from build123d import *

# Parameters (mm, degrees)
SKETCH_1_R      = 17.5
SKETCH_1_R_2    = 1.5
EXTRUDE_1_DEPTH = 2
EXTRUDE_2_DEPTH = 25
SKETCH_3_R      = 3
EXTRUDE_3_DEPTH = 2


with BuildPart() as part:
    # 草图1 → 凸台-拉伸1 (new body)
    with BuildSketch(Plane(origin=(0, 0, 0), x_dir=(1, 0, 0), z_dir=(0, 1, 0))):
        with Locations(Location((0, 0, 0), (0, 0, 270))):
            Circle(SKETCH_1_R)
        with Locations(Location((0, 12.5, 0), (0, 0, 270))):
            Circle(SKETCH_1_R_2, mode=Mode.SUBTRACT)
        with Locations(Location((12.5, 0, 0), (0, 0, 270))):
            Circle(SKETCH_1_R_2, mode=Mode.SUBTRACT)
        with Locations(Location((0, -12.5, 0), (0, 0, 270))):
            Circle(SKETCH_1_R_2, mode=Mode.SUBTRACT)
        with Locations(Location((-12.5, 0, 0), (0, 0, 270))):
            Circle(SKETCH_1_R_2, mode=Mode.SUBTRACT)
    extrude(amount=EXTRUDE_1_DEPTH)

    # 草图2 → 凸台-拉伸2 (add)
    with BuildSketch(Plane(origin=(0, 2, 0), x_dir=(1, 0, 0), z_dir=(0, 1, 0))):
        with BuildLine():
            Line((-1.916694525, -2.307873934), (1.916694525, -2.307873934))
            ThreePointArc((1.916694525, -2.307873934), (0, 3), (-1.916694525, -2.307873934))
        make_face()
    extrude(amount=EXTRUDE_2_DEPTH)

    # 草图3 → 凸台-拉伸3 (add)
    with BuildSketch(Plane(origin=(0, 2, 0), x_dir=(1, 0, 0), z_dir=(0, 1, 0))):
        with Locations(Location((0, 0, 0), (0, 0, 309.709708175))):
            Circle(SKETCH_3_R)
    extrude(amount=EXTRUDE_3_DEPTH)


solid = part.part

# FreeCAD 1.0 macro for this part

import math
import FreeCAD as App
import Part
import Sketcher

doc = App.newDocument("Part")
body = doc.addObject("PartDesign::Body", "Body")

sketch1 = doc.addObject("Sketcher::SketchObject", "Sketch")
body.addObject(sketch1)
sketch1.AttachmentSupport = (doc.XZ_Plane, [""])
sketch1.MapMode = "FlatFace"
sketch1.addGeometry([
    Part.Circle(App.Vector(0, 0, 0), App.Vector(0, 0, 1), 17.5),
    Part.Circle(App.Vector(0, -12.5, 0), App.Vector(0, 0, 1), 1.5),
    Part.Circle(App.Vector(-12.5, 0, 0), App.Vector(0, 0, 1), 1.5),
    Part.Circle(App.Vector(12.5, 0, 0), App.Vector(0, 0, 1), 1.5),
    Part.Circle(App.Vector(0, 12.5, 0), App.Vector(0, 0, 1), 1.5),
], False)
sketch1.addConstraint([
    Sketcher.Constraint("Coincident", 0, 3, -1, 1),
    Sketcher.Constraint("Equal", 1, 2),
    Sketcher.Constraint("Equal", 2, 3),
    Sketcher.Constraint("Equal", 3, 4),
    Sketcher.Constraint("Symmetric", 2, 3, 3, 3, -1, 1),
    Sketcher.Constraint("Symmetric", 1, 3, 4, 3, -1, 1),
    Sketcher.Constraint("PointOnObject", 1, 3, -2),
    Sketcher.Constraint("PointOnObject", 2, 3, -1),
    Sketcher.Constraint("Diameter", 0, 35.0),
    Sketcher.Constraint("Diameter", 1, 3.0),
    Sketcher.Constraint("DistanceX", 2, 3, 3, 3, 25.0),
    Sketcher.Constraint("DistanceY", 1, 3, 4, 3, 25.0),
])
pad1 = doc.addObject("PartDesign::Pad", "Pad")
body.addObject(pad1)
pad1.Profile = sketch1
pad1.Length = 2
pad1.Reversed = True

sketch2 = doc.addObject("Sketcher::SketchObject", "Sketch001")
body.addObject(sketch2)
sketch2.AttachmentSupport = (doc.XZ_Plane, [""])
sketch2.MapMode = "FlatFace"
sketch2.AttachmentOffset = App.Placement(App.Vector(0, 0, -2), App.Rotation())
sketch2.addGeometry([
    Part.LineSegment(App.Vector(-1.9, 2.3, 0), App.Vector(1.9, 2.3, 0)),
    Part.ArcOfCircle(Part.Circle(App.Vector(0, 0, 0), App.Vector(0, 0, 1), 3), math.radians(130), math.radians(410)),
], False)
sketch2.addConstraint([
    Sketcher.Constraint("Coincident", 0, 1, 1, 1),
    Sketcher.Constraint("Coincident", 1, 2, 0, 2),
    Sketcher.Constraint("Horizontal", 0),
    Sketcher.Constraint("Coincident", 1, 3, -1, 1),
    Sketcher.Constraint("Radius", 1, 3.0),
    Sketcher.Constraint("DistanceX", 0, 1, 0, 2, 3.833389),
])
pad2 = doc.addObject("PartDesign::Pad", "Pad001")
body.addObject(pad2)
pad2.Profile = sketch2
pad2.Length = 25
pad2.Reversed = True

sketch3 = doc.addObject("Sketcher::SketchObject", "Sketch002")
body.addObject(sketch3)
sketch3.AttachmentSupport = (doc.XZ_Plane, [""])
sketch3.MapMode = "FlatFace"
sketch3.AttachmentOffset = App.Placement(App.Vector(0, 0, -2), App.Rotation())
sketch3.addGeometry(Part.Circle(App.Vector(0, 0, 0), App.Vector(0, 0, 1), 3), False)
sketch3.addConstraint([
    Sketcher.Constraint("Coincident", 0, 3, -1, 1),
    Sketcher.Constraint("Diameter", 0, 6.0),
])
pad3 = doc.addObject("PartDesign::Pad", "Pad002")
body.addObject(pad3)
pad3.Profile = sketch3
pad3.Length = 2
pad3.Reversed = True

doc.recompute()
